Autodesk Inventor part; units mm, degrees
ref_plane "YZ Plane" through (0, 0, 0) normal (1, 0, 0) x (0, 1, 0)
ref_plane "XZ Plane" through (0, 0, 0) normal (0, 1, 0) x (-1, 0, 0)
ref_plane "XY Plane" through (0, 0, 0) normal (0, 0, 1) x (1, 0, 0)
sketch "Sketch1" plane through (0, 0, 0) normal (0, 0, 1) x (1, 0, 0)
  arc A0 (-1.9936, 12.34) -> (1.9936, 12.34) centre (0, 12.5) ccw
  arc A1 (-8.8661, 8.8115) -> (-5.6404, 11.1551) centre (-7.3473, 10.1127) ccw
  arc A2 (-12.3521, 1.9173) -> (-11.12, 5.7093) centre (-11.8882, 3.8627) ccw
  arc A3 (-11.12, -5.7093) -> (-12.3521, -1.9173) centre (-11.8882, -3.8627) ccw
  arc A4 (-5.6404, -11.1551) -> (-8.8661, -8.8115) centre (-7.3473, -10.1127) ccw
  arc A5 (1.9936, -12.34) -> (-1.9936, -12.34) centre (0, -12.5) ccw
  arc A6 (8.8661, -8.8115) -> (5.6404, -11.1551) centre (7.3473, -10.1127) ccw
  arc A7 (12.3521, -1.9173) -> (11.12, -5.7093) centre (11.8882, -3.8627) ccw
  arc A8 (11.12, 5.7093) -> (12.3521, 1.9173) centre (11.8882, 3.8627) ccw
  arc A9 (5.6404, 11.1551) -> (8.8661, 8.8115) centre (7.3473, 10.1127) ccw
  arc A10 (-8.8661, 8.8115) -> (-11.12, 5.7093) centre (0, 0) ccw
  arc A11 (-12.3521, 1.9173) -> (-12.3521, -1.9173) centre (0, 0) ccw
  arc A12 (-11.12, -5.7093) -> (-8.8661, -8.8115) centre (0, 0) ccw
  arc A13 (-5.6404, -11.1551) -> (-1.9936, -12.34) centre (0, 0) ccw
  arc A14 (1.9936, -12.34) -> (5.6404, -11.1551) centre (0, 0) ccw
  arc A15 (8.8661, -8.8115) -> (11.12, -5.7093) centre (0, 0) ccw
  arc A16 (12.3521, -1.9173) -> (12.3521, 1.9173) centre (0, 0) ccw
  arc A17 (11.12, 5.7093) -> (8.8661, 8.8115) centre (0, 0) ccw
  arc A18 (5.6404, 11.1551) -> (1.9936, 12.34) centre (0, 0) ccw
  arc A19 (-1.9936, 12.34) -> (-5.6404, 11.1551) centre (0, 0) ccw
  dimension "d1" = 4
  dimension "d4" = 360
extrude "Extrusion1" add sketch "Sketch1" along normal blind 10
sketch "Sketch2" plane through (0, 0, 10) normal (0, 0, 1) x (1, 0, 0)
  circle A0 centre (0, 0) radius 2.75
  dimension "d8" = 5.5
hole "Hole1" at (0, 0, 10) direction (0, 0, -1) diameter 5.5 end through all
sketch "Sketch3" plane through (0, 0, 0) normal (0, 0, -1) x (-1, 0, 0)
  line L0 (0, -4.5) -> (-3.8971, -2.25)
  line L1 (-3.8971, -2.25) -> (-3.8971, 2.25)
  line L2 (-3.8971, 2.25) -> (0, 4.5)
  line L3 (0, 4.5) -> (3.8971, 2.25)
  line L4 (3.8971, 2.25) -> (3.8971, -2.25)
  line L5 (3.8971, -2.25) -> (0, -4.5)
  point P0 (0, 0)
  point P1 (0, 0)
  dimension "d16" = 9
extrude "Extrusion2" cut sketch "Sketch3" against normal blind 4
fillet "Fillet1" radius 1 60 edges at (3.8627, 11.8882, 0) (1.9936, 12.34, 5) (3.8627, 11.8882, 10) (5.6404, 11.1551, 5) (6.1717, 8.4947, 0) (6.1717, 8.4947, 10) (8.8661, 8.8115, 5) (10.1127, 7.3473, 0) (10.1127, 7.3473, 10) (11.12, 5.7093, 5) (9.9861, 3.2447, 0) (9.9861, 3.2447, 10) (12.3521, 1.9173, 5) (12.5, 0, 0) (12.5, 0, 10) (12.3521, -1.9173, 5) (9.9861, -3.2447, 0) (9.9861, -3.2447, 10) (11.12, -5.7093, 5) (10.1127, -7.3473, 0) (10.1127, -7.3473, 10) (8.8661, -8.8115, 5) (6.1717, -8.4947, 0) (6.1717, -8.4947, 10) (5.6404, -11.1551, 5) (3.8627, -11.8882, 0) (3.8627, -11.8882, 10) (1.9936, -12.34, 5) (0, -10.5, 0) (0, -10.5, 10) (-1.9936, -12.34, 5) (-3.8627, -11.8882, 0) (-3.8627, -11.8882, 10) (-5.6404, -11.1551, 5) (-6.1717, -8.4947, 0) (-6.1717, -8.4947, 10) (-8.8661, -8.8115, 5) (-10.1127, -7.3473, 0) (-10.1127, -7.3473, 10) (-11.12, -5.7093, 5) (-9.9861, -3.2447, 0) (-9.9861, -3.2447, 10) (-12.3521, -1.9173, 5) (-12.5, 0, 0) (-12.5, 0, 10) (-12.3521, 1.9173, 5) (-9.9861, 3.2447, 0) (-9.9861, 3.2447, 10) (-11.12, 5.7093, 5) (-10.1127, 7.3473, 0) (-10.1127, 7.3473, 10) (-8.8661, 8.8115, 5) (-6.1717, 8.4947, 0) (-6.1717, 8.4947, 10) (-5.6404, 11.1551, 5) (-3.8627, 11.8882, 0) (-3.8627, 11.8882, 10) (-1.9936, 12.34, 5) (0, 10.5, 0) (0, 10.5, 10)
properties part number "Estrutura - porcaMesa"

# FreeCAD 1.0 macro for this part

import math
import FreeCAD as App
import Part
import Sketcher
from FreeCAD import Vector
Q = App.Units.Quantity


def edges_at(feature, points):
    """Names of the edges that pass closest to the given points."""
    edges = feature.Shape.Edges
    near = lambda p: min(range(len(edges)), key=lambda i: edges[i].distToShape(Part.Vertex(*p))[0])
    return sorted({f"Edge{near(p) + 1}" for p in points})

doc = App.newDocument("Part")
body = doc.addObject("PartDesign::Body", "Body")

# Sketch on XY plane
sketch1 = doc.addObject("Sketcher::SketchObject", "Sketch")
body.addObject(sketch1)
sketch1.AttachmentSupport = (doc.XY_Plane, [""])
sketch1.MapMode = "FlatFace"
sketch1.addGeometry(Part.ArcOfCircle(Part.Circle(Vector(0, 12.5, 0), Vector(0, 0, 1), 2.00001), math.radians(-175.411458), math.radians(-4.588542)), False)
sketch1.addGeometry(Part.ArcOfCircle(Part.Circle(Vector(0, 0, 0), Vector(0, 0, 1), 12.50002), math.radians(99.177178), math.radians(116.822721)), False)
sketch1.addGeometry(Part.ArcOfCircle(Part.Circle(Vector(-7.3473, 10.1127, 0), Vector(0, 0, 1), 1.999969), math.radians(-139.412378), math.radians(31.412319)), False)
sketch1.addGeometry(Part.ArcOfCircle(Part.Circle(Vector(0, 0, 0), Vector(0, 0, 1), 12.50002), math.radians(135.176966), math.radians(152.822845)), False)
sketch1.addGeometry(Part.ArcOfCircle(Part.Circle(Vector(-11.8882, 3.8627, 0), Vector(0, 0, 1), 1.999946), math.radians(-103.412272), math.radians(67.412309)), False)
sketch1.addGeometry(Part.ArcOfCircle(Part.Circle(Vector(0, 0, 0), Vector(0, 0, 1), 12.500017), math.radians(171.176926), math.radians(188.823074)), False)
sketch1.addGeometry(Part.ArcOfCircle(Part.Circle(Vector(-11.8882, -3.8627, 0), Vector(0, 0, 1), 2.000016), math.radians(-67.412309), math.radians(103.412272)), False)
sketch1.addGeometry(Part.ArcOfCircle(Part.Circle(Vector(0, 0, 0), Vector(0, 0, 1), 12.500002), math.radians(-152.822845), math.radians(-135.176966)), False)
sketch1.addGeometry(Part.ArcOfCircle(Part.Circle(Vector(-7.3473, -10.1127, 0), Vector(0, 0, 1), 2.000026), math.radians(-31.412319), math.radians(139.412378)), False)
sketch1.addGeometry(Part.ArcOfCircle(Part.Circle(Vector(0, 0, 0), Vector(0, 0, 1), 12.500002), math.radians(-116.822721), math.radians(-99.177178)), False)
sketch1.addGeometry(Part.ArcOfCircle(Part.Circle(Vector(0, -12.5, 0), Vector(0, 0, 1), 2.00001), math.radians(4.588542), math.radians(175.411458)), False)
sketch1.addGeometry(Part.ArcOfCircle(Part.Circle(Vector(0, 0, 0), Vector(0, 0, 1), 12.50002), math.radians(-80.822822), math.radians(-63.177279)), False)
sketch1.addGeometry(Part.ArcOfCircle(Part.Circle(Vector(7.3473, -10.1127, 0), Vector(0, 0, 1), 1.999969), math.radians(40.587622), math.radians(211.412319)), False)
sketch1.addGeometry(Part.ArcOfCircle(Part.Circle(Vector(0, 0, 0), Vector(0, 0, 1), 12.50002), math.radians(-44.823034), math.radians(-27.177155)), False)
sketch1.addGeometry(Part.ArcOfCircle(Part.Circle(Vector(11.8882, -3.8627, 0), Vector(0, 0, 1), 1.999946), math.radians(76.587728), math.radians(247.412309)), False)
sketch1.addGeometry(Part.ArcOfCircle(Part.Circle(Vector(0, 0, 0), Vector(0, 0, 1), 12.500017), math.radians(-8.823074), math.radians(8.823074)), False)
sketch1.addGeometry(Part.ArcOfCircle(Part.Circle(Vector(11.8882, 3.8627, 0), Vector(0, 0, 1), 2.000016), math.radians(112.587691), math.radians(283.412272)), False)
sketch1.addGeometry(Part.ArcOfCircle(Part.Circle(Vector(0, 0, 0), Vector(0, 0, 1), 12.500002), math.radians(27.177155), math.radians(44.823034)), False)
sketch1.addGeometry(Part.ArcOfCircle(Part.Circle(Vector(7.3473, 10.1127, 0), Vector(0, 0, 1), 2.000026), math.radians(148.587681), math.radians(319.412378)), False)
sketch1.addGeometry(Part.ArcOfCircle(Part.Circle(Vector(0, 0, 0), Vector(0, 0, 1), 12.500002), math.radians(63.177279), math.radians(80.822822)), False)
sketch1.addConstraint(Sketcher.Constraint("Coincident", 0, 1, 1, 1))
sketch1.addConstraint(Sketcher.Constraint("Coincident", 1, 2, 2, 2))
sketch1.addConstraint(Sketcher.Constraint("Coincident", 2, 1, 3, 1))
sketch1.addConstraint(Sketcher.Constraint("Coincident", 3, 2, 4, 2))
sketch1.addConstraint(Sketcher.Constraint("Coincident", 4, 1, 5, 1))
sketch1.addConstraint(Sketcher.Constraint("Coincident", 5, 2, 6, 2))
sketch1.addConstraint(Sketcher.Constraint("Coincident", 6, 1, 7, 1))
sketch1.addConstraint(Sketcher.Constraint("Coincident", 7, 2, 8, 2))
sketch1.addConstraint(Sketcher.Constraint("Coincident", 8, 1, 9, 1))
sketch1.addConstraint(Sketcher.Constraint("Coincident", 9, 2, 10, 2))
sketch1.addConstraint(Sketcher.Constraint("Coincident", 10, 1, 11, 1))
sketch1.addConstraint(Sketcher.Constraint("Coincident", 11, 2, 12, 2))
sketch1.addConstraint(Sketcher.Constraint("Coincident", 12, 1, 13, 1))
sketch1.addConstraint(Sketcher.Constraint("Coincident", 13, 2, 14, 2))
sketch1.addConstraint(Sketcher.Constraint("Coincident", 14, 1, 15, 1))
sketch1.addConstraint(Sketcher.Constraint("Coincident", 15, 2, 16, 2))
sketch1.addConstraint(Sketcher.Constraint("Coincident", 16, 1, 17, 1))
sketch1.addConstraint(Sketcher.Constraint("Coincident", 17, 2, 18, 2))
sketch1.addConstraint(Sketcher.Constraint("Coincident", 18, 1, 19, 1))
sketch1.addConstraint(Sketcher.Constraint("Coincident", 19, 2, 0, 2))
sketch1.addConstraint(Sketcher.Constraint("Coincident", 1, 3, -1, 1))
sketch1.addConstraint(Sketcher.Constraint("Coincident", 3, 3, -1, 1))
sketch1.addConstraint(Sketcher.Constraint("Coincident", 5, 3, -1, 1))
sketch1.addConstraint(Sketcher.Constraint("Coincident", 7, 3, -1, 1))
sketch1.addConstraint(Sketcher.Constraint("Coincident", 9, 3, -1, 1))
sketch1.addConstraint(Sketcher.Constraint("Coincident", 11, 3, -1, 1))
sketch1.addConstraint(Sketcher.Constraint("Coincident", 13, 3, -1, 1))
sketch1.addConstraint(Sketcher.Constraint("Coincident", 15, 3, -1, 1))
sketch1.addConstraint(Sketcher.Constraint("Coincident", 17, 3, -1, 1))
sketch1.addConstraint(Sketcher.Constraint("Coincident", 19, 3, -1, 1))
sketch1.addConstraint(Sketcher.Constraint("Equal", 0, 2))
sketch1.addConstraint(Sketcher.Constraint("Equal", 1, 3))
sketch1.addConstraint(Sketcher.Constraint("Equal", 2, 4))
sketch1.addConstraint(Sketcher.Constraint("Equal", 3, 5))
sketch1.addConstraint(Sketcher.Constraint("Equal", 4, 6))
sketch1.addConstraint(Sketcher.Constraint("Equal", 5, 7))
sketch1.addConstraint(Sketcher.Constraint("Equal", 6, 8))
sketch1.addConstraint(Sketcher.Constraint("Equal", 7, 9))
sketch1.addConstraint(Sketcher.Constraint("Equal", 8, 10))
sketch1.addConstraint(Sketcher.Constraint("Equal", 9, 11))
sketch1.addConstraint(Sketcher.Constraint("Equal", 10, 12))
sketch1.addConstraint(Sketcher.Constraint("Equal", 11, 13))
sketch1.addConstraint(Sketcher.Constraint("Equal", 12, 14))
sketch1.addConstraint(Sketcher.Constraint("Equal", 13, 15))
sketch1.addConstraint(Sketcher.Constraint("Equal", 14, 16))
sketch1.addConstraint(Sketcher.Constraint("Equal", 15, 17))
sketch1.addConstraint(Sketcher.Constraint("Equal", 16, 18))
sketch1.addConstraint(Sketcher.Constraint("Equal", 17, 19))
sketch1.addConstraint(Sketcher.Constraint("Symmetric", 0, 3, 10, 3, -1, 1))
sketch1.addConstraint(Sketcher.Constraint("Symmetric", 2, 3, 12, 3, -1, 1))
sketch1.addConstraint(Sketcher.Constraint("Symmetric", 4, 3, 14, 3, -1, 1))
sketch1.addConstraint(Sketcher.Constraint("Symmetric", 6, 3, 16, 3, -1, 1))
sketch1.addConstraint(Sketcher.Constraint("Symmetric", 8, 3, 18, 3, -1, 1))
sketch1.addConstraint(Sketcher.Constraint("Symmetric", 8, 3, 12, 3, -2))
sketch1.addConstraint(Sketcher.Constraint("Symmetric", 6, 3, 14, 3, -2))
sketch1.addConstraint(Sketcher.Constraint("PointOnObject", 0, 3, -2))
sketch1.addConstraint(Sketcher.Constraint("Radius", 0, 2.0))
sketch1.addConstraint(Sketcher.Constraint("Radius", 1, 12.5))
sketch1.addConstraint(Sketcher.Constraint("DistanceY", -1, 1, 0, 3, 12.5))
sketch1.addConstraint(Sketcher.Constraint("DistanceX", 3, 2, -1, 1, 11.12))
sketch1.addConstraint(Sketcher.Constraint("DistanceY", 4, 3, 2, 3, 6.25))
sketch1.addConstraint(Sketcher.Constraint("DistanceY", 6, 3, 4, 1, 5.78))
sketch1.addConstraint(Sketcher.Constraint("DistanceY", -1, 1, 1, 2, 11.155))
pad1 = doc.addObject("PartDesign::Pad", "Pad")
body.addObject(pad1)
pad1.Profile = sketch1
pad1.Length = 10

# Sketch on XY plane
sketch2 = doc.addObject("Sketcher::SketchObject", "Sketch001")
body.addObject(sketch2)
sketch2.AttachmentSupport = (doc.XY_Plane, [""])
sketch2.MapMode = "FlatFace"
sketch2.AttachmentOffset = App.Placement(Vector(0, 0, 10), App.Rotation())
sketch2.addGeometry(Part.Circle(Vector(0, 0, 0), Vector(0, 0, 1), 2.75), False)
sketch2.addConstraint(Sketcher.Constraint("Coincident", 0, 3, -1, 1))
sketch2.addConstraint(Sketcher.Constraint("Diameter", 0, 5.5))
doc.recompute()
hole = doc.addObject("PartDesign::Hole", "Hole")
body.addObject(hole)
hole.Profile = sketch2
hole.ThreadType = "None"
hole.Diameter = 5.5
hole.DepthType = "ThroughAll"

# Sketch on XY plane
sketch3 = doc.addObject("Sketcher::SketchObject", "Sketch002")
body.addObject(sketch3)
sketch3.AttachmentSupport = (doc.XY_Plane, [""])
sketch3.MapMode = "FlatFace"
sketch3.addGeometry(Part.LineSegment(Vector(3.8971, -2.25, 0), Vector(0, -4.5, 0)), False)
sketch3.addGeometry(Part.LineSegment(Vector(0, -4.5, 0), Vector(-3.8971, -2.25, 0)), False)
sketch3.addGeometry(Part.LineSegment(Vector(-3.8971, -2.25, 0), Vector(-3.8971, 2.25, 0)), False)
sketch3.addGeometry(Part.LineSegment(Vector(-3.8971, 2.25, 0), Vector(0, 4.5, 0)), False)
sketch3.addGeometry(Part.LineSegment(Vector(0, 4.5, 0), Vector(3.8971, 2.25, 0)), False)
sketch3.addGeometry(Part.LineSegment(Vector(3.8971, 2.25, 0), Vector(3.8971, -2.25, 0)), False)
sketch3.addConstraint(Sketcher.Constraint("Coincident", 0, 2, 1, 1))
sketch3.addConstraint(Sketcher.Constraint("Coincident", 1, 2, 2, 1))
sketch3.addConstraint(Sketcher.Constraint("Coincident", 2, 2, 3, 1))
sketch3.addConstraint(Sketcher.Constraint("Coincident", 3, 2, 4, 1))
sketch3.addConstraint(Sketcher.Constraint("Coincident", 4, 2, 5, 1))
sketch3.addConstraint(Sketcher.Constraint("Coincident", 5, 2, 0, 1))
sketch3.addConstraint(Sketcher.Constraint("Vertical", 2))
sketch3.addConstraint(Sketcher.Constraint("Vertical", 5))
sketch3.addConstraint(Sketcher.Constraint("Symmetric", 0, 2, 3, 2, -1, 1))
sketch3.addConstraint(Sketcher.Constraint("Symmetric", 1, 2, 4, 2, -1, 1))
sketch3.addConstraint(Sketcher.Constraint("PointOnObject", 0, 2, -2))
sketch3.addConstraint(Sketcher.Constraint("Parallel", 0, 3))
sketch3.addConstraint(Sketcher.Constraint("Horizontal", 2, 2, 4, 2))
sketch3.addConstraint(Sketcher.Constraint("DistanceY", 0, 2, 3, 2, 9.0))
sketch3.addConstraint(Sketcher.Constraint("Angle", 0, Q("-150 deg")))
sketch3.addConstraint(Sketcher.Constraint("DistanceY", 2, 1, 2, 2, 4.5))
pocket1 = doc.addObject("PartDesign::Pocket", "Pocket")
body.addObject(pocket1)
pocket1.Profile = sketch3
pocket1.Length = 4
pocket1.Reversed = True
doc.recompute()

fillet = doc.addObject("PartDesign::Fillet", "Fillet")
body.addObject(fillet)
fillet.Base = (pocket1, edges_at(pocket1, [
    (3.863, 11.888, 0),
    (1.994, 12.34, 5),
    (3.863, 11.888, 10),
    (5.64, 11.155, 5),
    (6.172, 8.495, 0),
    (6.172, 8.495, 10),
    (8.866, 8.812, 5),
    (10.113, 7.347, 0),
    (10.113, 7.347, 10),
    (11.12, 5.709, 5),
    (9.986, 3.245, 0),
    (9.986, 3.245, 10),
    (12.352, 1.917, 5),
    (12.5, 0, 0),
    (12.5, 0, 10),
    (12.352, -1.917, 5),
    (9.986, -3.245, 0),
    (9.986, -3.245, 10),
    (11.12, -5.709, 5),
    (10.113, -7.347, 0),
    (10.113, -7.347, 10),
    (8.866, -8.812, 5),
    (6.172, -8.495, 0),
    (6.172, -8.495, 10),
    (5.64, -11.155, 5),
    (3.863, -11.888, 0),
    (3.863, -11.888, 10),
    (1.994, -12.34, 5),
    (0, -10.5, 0),
    (0, -10.5, 10),
    (-1.994, -12.34, 5),
    (-3.863, -11.888, 0),
    (-3.863, -11.888, 10),
    (-5.64, -11.155, 5),
    (-6.172, -8.495, 0),
    (-6.172, -8.495, 10),
    (-8.866, -8.812, 5),
    (-10.113, -7.347, 0),
    (-10.113, -7.347, 10),
    (-11.12, -5.709, 5),
    (-9.986, -3.245, 0),
    (-9.986, -3.245, 10),
    (-12.352, -1.917, 5),
    (-12.5, 0, 0),
    (-12.5, 0, 10),
    (-12.352, 1.917, 5),
    (-9.986, 3.245, 0),
    (-9.986, 3.245, 10),
    (-11.12, 5.709, 5),
    (-10.113, 7.347, 0),
    (-10.113, 7.347, 10),
    (-8.866, 8.812, 5),
    (-6.172, 8.495, 0),
    (-6.172, 8.495, 10),
    (-5.64, 11.155, 5),
    (-3.863, 11.888, 0),
    (-3.863, 11.888, 10),
    (-1.994, 12.34, 5),
    (0, 10.5, 0),
    (0, 10.5, 10),
]))
fillet.Radius = 1

doc.recompute()
